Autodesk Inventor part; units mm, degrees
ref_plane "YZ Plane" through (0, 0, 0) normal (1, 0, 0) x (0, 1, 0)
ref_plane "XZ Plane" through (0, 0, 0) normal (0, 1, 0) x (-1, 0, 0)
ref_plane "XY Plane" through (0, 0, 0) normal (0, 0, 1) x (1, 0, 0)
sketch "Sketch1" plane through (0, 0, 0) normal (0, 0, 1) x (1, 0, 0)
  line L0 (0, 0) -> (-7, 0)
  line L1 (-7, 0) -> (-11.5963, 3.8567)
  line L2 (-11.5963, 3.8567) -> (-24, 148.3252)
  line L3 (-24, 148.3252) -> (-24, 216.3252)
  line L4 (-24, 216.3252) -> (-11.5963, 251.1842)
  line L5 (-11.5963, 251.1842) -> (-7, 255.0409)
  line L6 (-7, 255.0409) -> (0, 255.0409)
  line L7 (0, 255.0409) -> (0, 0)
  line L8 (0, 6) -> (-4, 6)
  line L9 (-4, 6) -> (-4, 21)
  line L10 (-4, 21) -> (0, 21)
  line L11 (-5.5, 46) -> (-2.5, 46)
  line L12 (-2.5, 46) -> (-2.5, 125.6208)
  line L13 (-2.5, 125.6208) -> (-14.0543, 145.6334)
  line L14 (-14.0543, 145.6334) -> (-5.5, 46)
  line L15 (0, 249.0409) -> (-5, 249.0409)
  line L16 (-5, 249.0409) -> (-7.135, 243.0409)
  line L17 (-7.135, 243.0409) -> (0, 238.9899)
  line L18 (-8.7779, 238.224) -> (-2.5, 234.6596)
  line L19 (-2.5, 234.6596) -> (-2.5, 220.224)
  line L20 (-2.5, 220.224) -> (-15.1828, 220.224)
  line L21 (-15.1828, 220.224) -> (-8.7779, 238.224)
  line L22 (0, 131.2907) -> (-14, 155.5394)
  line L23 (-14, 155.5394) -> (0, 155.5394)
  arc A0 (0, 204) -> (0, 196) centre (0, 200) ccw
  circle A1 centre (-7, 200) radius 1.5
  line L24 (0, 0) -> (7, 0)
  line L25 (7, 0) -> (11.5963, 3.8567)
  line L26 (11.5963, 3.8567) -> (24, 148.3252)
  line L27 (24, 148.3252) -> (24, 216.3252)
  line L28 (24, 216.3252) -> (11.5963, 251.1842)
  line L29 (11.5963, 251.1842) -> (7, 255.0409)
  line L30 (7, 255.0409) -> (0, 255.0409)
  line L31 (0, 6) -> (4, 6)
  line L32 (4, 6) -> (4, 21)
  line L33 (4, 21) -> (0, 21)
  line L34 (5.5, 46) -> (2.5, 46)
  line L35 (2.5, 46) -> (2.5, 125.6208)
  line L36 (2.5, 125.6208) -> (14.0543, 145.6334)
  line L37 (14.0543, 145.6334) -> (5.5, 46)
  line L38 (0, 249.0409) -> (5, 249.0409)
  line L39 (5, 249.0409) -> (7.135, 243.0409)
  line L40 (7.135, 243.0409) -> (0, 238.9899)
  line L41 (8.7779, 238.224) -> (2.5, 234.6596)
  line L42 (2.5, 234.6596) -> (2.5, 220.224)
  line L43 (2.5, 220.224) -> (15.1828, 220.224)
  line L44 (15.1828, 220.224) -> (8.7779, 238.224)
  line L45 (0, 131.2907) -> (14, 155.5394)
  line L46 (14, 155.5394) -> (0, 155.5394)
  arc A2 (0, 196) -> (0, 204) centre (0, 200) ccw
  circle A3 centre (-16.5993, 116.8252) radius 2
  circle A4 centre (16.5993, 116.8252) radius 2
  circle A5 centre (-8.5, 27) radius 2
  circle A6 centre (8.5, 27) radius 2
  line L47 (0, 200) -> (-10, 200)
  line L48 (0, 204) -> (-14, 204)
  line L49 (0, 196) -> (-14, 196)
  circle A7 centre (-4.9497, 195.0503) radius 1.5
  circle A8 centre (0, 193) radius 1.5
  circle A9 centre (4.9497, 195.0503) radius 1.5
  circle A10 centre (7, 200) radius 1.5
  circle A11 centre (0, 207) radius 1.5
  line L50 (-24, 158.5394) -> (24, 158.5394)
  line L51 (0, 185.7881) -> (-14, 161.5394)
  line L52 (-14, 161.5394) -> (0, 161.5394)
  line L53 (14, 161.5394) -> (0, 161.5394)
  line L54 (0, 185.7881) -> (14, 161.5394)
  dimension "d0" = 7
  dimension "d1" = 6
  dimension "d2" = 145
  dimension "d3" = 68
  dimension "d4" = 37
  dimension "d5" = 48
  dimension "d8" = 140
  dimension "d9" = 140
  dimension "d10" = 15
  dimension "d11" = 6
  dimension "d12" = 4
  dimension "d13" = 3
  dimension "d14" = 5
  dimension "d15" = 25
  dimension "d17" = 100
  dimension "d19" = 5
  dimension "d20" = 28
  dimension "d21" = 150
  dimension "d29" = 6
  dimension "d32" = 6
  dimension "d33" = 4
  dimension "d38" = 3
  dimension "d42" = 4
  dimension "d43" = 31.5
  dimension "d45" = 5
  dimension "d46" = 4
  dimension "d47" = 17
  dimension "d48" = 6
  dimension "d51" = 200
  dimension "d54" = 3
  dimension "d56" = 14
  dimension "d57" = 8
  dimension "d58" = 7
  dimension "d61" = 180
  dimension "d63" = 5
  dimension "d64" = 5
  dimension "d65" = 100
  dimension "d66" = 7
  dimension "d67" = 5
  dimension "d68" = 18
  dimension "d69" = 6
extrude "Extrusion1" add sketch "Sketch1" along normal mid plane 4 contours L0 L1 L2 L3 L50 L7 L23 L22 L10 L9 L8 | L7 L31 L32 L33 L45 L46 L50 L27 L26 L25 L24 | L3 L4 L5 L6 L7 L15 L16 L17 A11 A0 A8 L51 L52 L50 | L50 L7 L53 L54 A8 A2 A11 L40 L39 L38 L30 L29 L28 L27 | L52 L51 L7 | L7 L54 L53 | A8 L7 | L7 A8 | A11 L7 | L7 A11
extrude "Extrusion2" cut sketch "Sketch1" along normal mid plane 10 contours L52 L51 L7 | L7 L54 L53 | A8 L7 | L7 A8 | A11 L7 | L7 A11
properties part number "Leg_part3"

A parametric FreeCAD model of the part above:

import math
import FreeCAD as App
import Part
import Sketcher
Q = App.Units.Quantity


def add_polygon(sketch, points):
    """Adds a closed chain of lines whose ends are joined by coincident constraints."""
    first, n = sketch.GeometryCount, len(points)
    for a, b in zip(points, points[1:] + points[:1]):
        sketch.addGeometry(Part.LineSegment(App.Vector(*a, 0), App.Vector(*b, 0)), False)
    for i in range(n):
        sketch.addConstraint(Sketcher.Constraint("Coincident", first + i, 2, first + (i + 1) % n, 1))

doc = App.newDocument("Part")
body = doc.addObject("PartDesign::Body", "Body")

# Sketch on XY plane
sketch1 = doc.addObject("Sketcher::SketchObject", "Sketch")
body.addObject(sketch1)
sketch1.AttachmentSupport = (doc.XY_Plane, [""])
sketch1.MapMode = "FlatFace"
add_polygon(sketch1, [(-7, 0), (7, 0), (11.6, 3.9), (24, 148.3), (24, 216.3), (11.6, 251.2), (7, 255), (-7, 255), (-11.6, 251.2), (-24, 216.3), (-24, 148.3), (-11.6, 3.9)])  # lines 0-11
add_polygon(sketch1, [(-14, 155.5), (14, 155.5), (0, 131.3)])  # lines 12-14
add_polygon(sketch1, [(-4, 21), (4, 21), (4, 6), (-4, 6)])  # lines 15-18
sketch1.addGeometry(Part.Circle(App.Vector(-8.5, 27, 0), App.Vector(0, 0, 1), 2), False)  # 19
sketch1.addGeometry(Part.Circle(App.Vector(-16.6, 116.8, 0), App.Vector(0, 0, 1), 2), False)  # 20
add_polygon(sketch1, [(-2.5, 46), (-5.5, 46), (-14.1, 145.6), (-2.5, 125.6)])  # lines 21-24
add_polygon(sketch1, [(-5, 249), (5, 249), (7.1, 243), (0, 239), (-7.1, 243)])  # lines 25-29
sketch1.addGeometry(Part.ArcOfCircle(Part.Circle(App.Vector(0, 200, 0), App.Vector(0, 0, 1), 4), math.radians(-90), math.radians(180)), False)  # 30
sketch1.addGeometry(Part.ArcOfCircle(Part.Circle(App.Vector(0, 200, 0), App.Vector(0, 0, 1), 4), math.radians(180), math.radians(270)), False)  # 31
sketch1.addGeometry(Part.Circle(App.Vector(-7, 200, 0), App.Vector(0, 0, 1), 1.5), False)  # 32
sketch1.addGeometry(Part.Circle(App.Vector(-4.9, 195.1, 0), App.Vector(0, 0, 1), 1.5), False)  # 33
add_polygon(sketch1, [(-15.2, 220.2), (-8.8, 238.2), (-2.5, 234.7), (-2.5, 220.2)])  # lines 34-37
add_polygon(sketch1, [(2.5, 46), (2.5, 125.6), (14.1, 145.6), (5.5, 46)])  # lines 38-41
sketch1.addGeometry(Part.Circle(App.Vector(16.6, 116.8, 0), App.Vector(0, 0, 1), 2), False)  # 42
sketch1.addGeometry(Part.Circle(App.Vector(8.5, 27, 0), App.Vector(0, 0, 1), 2), False)  # 43
sketch1.addGeometry(Part.Circle(App.Vector(4.9, 195.1, 0), App.Vector(0, 0, 1), 1.5), False)  # 44
sketch1.addGeometry(Part.Circle(App.Vector(7, 200, 0), App.Vector(0, 0, 1), 1.5), False)  # 45
add_polygon(sketch1, [(2.5, 234.7), (8.8, 238.2), (15.2, 220.2), (2.5, 220.2)])  # lines 46-49
sketch1.addConstraint([
    Sketcher.Constraint("Tangent", 30, 1, 31, 2),
    Sketcher.Constraint("Coincident", 31, 1, 30, 2),
    Sketcher.Constraint("Horizontal", 0),
    Sketcher.Constraint("Vertical", 3),
    Sketcher.Constraint("Horizontal", 6),
    Sketcher.Constraint("Vertical", 9),
    Sketcher.Constraint("Horizontal", 12),
    Sketcher.Constraint("Horizontal", 15),
    Sketcher.Constraint("Vertical", 16),
    Sketcher.Constraint("Horizontal", 17),
    Sketcher.Constraint("Vertical", 18),
    Sketcher.Constraint("Horizontal", 21),
    Sketcher.Constraint("Vertical", 24),
    Sketcher.Constraint("Horizontal", 25),
    Sketcher.Constraint("Vertical", 36),
    Sketcher.Constraint("Horizontal", 37),
    Sketcher.Constraint("Vertical", 38),
    Sketcher.Constraint("Horizontal", 41),
    Sketcher.Constraint("Horizontal", 48),
    Sketcher.Constraint("Vertical", 49),
    Sketcher.Constraint("Equal", 19, 20),
    Sketcher.Constraint("Equal", 32, 33),
    Sketcher.Constraint("Equal", 20, 42),
    Sketcher.Constraint("Equal", 42, 43),
    Sketcher.Constraint("Equal", 33, 44),
    Sketcher.Constraint("Equal", 44, 45),
    Sketcher.Constraint("Symmetric", 0, 2, 11, 2, -1, 1),
    Sketcher.Constraint("Symmetric", 20, 3, 42, 3, -2),
    Sketcher.Constraint("Symmetric", 19, 3, 43, 3, -2),
    Sketcher.Constraint("Symmetric", 33, 3, 44, 3, -2),
    Sketcher.Constraint("Symmetric", 32, 3, 45, 3, -2),
    Sketcher.Constraint("Symmetric", 4, 2, 7, 2, -2),
    Sketcher.Constraint("Symmetric", 3, 2, 8, 2, -2),
    Sketcher.Constraint("Symmetric", 1, 2, 10, 2, -2),
    Sketcher.Constraint("Symmetric", 26, 2, 28, 2, -2),
    Sketcher.Constraint("Symmetric", 23, 2, 38, 2, -2),
    Sketcher.Constraint("Symmetric", 22, 2, 39, 2, -2),
    Sketcher.Constraint("Symmetric", 21, 2, 40, 2, -2),
    Sketcher.Constraint("Symmetric", 34, 2, 46, 2, -2),
    Sketcher.Constraint("Symmetric", 37, 2, 47, 2, -2),
    Sketcher.Constraint("Symmetric", 35, 2, 49, 2, -2),
    Sketcher.Constraint("PointOnObject", 30, 3, -2),
    Sketcher.Constraint("PointOnObject", 13, 2, -2),
    Sketcher.Constraint("PointOnObject", 27, 2, -2),
    Sketcher.Constraint("PointOnObject", 30, 1, -2),
    Sketcher.Constraint("Parallel", 1, 7),
    Sketcher.Constraint("Parallel", 5, 11),
    Sketcher.Constraint("Parallel", 10, 22),
    Sketcher.Constraint("Parallel", 14, 23),
    Sketcher.Constraint("Parallel", 4, 26),
    Sketcher.Constraint("Parallel", 8, 29),
    Sketcher.Constraint("Parallel", 29, 34),
    Sketcher.Constraint("Parallel", 28, 35),
    Sketcher.Constraint("Parallel", 13, 39),
    Sketcher.Constraint("Parallel", 2, 40),
    Sketcher.Constraint("Horizontal", 31, 3, 32, 3),
    Sketcher.Constraint("Horizontal", 45, 3, 31, 1),
    Sketcher.Constraint("Vertical", 45, 3, 0, 2),
    Sketcher.Constraint("Vertical", 1, 2, 4, 2),
    Sketcher.Constraint("Vertical", 0, 2, 5, 2),
    Sketcher.Constraint("Vertical", 18, 2, 31, 1),
    Sketcher.Constraint("Vertical", 24, 2, 35, 2),
    Sketcher.Constraint("Diameter", 19, 4.0),
    Sketcher.Constraint("Diameter", 32, 3.0),
    Sketcher.Constraint("Radius", 30, 4.0),
    Sketcher.Constraint("DistanceX", 0, 1, 0, 2, 14.0),
    Sketcher.Constraint("DistanceX", 12, 1, 12, 2, 28.0),
    Sketcher.Constraint("DistanceX", 15, 1, 15, 2, 8.0),
    Sketcher.Constraint("DistanceX", 21, 2, 21, 1, 3.0),
    Sketcher.Constraint("DistanceY", 3, 1, 3, 2, 68.0),
    Sketcher.Constraint("DistanceY", 16, 2, 16, 1, 15.0),
    Sketcher.Constraint("Angle", 5, Q("140.0004 deg")),
    Sketcher.Constraint("Distance", 1, 6.0),
    Sketcher.Constraint("Distance", 2, 145.0),
    Sketcher.Constraint("Distance", 4, 37.0),
    Sketcher.Constraint("Distance", 13, 28.0),
    Sketcher.Constraint("Distance", 22, 100.0),
    Sketcher.Constraint("DistanceY", -1, 1, 30, 3, 200.0),
    Sketcher.Constraint("DistanceY", -1, 1, 16, 2, 6.0),
    Sketcher.Constraint("DistanceX", -1, 1, 25, 2, 5.0),
    Sketcher.Constraint("DistanceX", 19, 3, 43, 3, 17.0),
    Sketcher.Constraint("DistanceX", 45, 3, 2, 2, 17.0),
    Sketcher.Constraint("DistanceY", 15, 2, 43, 3, 6.0),
    Sketcher.Constraint("DistanceX", 19, 3, 21, 2, 3.0),
    Sketcher.Constraint("DistanceY", 18, 2, 21, 2, 25.0),
    Sketcher.Constraint("DistanceY", 25, 2, 5, 2, 6.0),
    Sketcher.Constraint("DistanceY", 26, 2, 25, 2, 6.0),
    Sketcher.Constraint("DistanceY", 36, 2, 34, 2, 18.0),
    Sketcher.Constraint("DistanceY", 42, 3, 2, 2, 31.5),
    Sketcher.Constraint("DistanceY", -1, 1, 27, 2, 238.99),
    Sketcher.Constraint("DistanceY", 23, 2, 13, 2, 5.67),
    Sketcher.Constraint("DistanceX", 37, 2, 37, 1, 12.6828),
    Sketcher.Constraint("DistanceY", -1, 1, 34, 2, 238.224),
    Sketcher.Constraint("DistanceY", 20, 3, 33, 3, 78.225),
    Sketcher.Constraint("DistanceX", 33, 3, 42, 3, 21.549),
    Sketcher.Constraint("DistanceX", 1, 2, 42, 3, 5.003),
])
pad1 = doc.addObject("PartDesign::Pad", "Pad")
body.addObject(pad1)
pad1.Profile = sketch1
pad1.Length = 4
pad1.Midplane = True

# Sketch on XY plane
sketch2 = doc.addObject("Sketcher::SketchObject", "Sketch001")
body.addObject(sketch2)
sketch2.AttachmentSupport = (doc.XY_Plane, [""])
sketch2.MapMode = "FlatFace"
add_polygon(sketch2, [(-14, 161.5), (14, 161.5), (0, 185.8)])  # lines 0-2
sketch2.addGeometry(Part.Circle(App.Vector(0, 193, 0), App.Vector(0, 0, 1), 1.5), False)  # 3
sketch2.addGeometry(Part.Circle(App.Vector(0, 207, 0), App.Vector(0, 0, 1), 1.5), False)  # 4
sketch2.addConstraint([
    Sketcher.Constraint("Horizontal", 0),
    Sketcher.Constraint("Equal", 3, 4),
    Sketcher.Constraint("PointOnObject", 3, 3, -2),
    Sketcher.Constraint("PointOnObject", 4, 3, -2),
    Sketcher.Constraint("PointOnObject", 1, 2, -2),
    Sketcher.Constraint("Equal", 1, 2),
    Sketcher.Constraint("Diameter", 3, 3.0),
    Sketcher.Constraint("DistanceX", 0, 1, 0, 2, 28.0),
    Sketcher.Constraint("Distance", 1, 28.0),
    Sketcher.Constraint("DistanceY", 3, 3, 4, 3, 14.0),
    Sketcher.Constraint("DistanceY", -1, 1, 3, 3, 193.0),
    Sketcher.Constraint("DistanceY", -1, 1, 1, 2, 185.788),
])
pocket1 = doc.addObject("PartDesign::Pocket", "Pocket")
body.addObject(pocket1)
pocket1.Profile = sketch2
pocket1.Length = 10
pocket1.Midplane = True

doc.recompute()
